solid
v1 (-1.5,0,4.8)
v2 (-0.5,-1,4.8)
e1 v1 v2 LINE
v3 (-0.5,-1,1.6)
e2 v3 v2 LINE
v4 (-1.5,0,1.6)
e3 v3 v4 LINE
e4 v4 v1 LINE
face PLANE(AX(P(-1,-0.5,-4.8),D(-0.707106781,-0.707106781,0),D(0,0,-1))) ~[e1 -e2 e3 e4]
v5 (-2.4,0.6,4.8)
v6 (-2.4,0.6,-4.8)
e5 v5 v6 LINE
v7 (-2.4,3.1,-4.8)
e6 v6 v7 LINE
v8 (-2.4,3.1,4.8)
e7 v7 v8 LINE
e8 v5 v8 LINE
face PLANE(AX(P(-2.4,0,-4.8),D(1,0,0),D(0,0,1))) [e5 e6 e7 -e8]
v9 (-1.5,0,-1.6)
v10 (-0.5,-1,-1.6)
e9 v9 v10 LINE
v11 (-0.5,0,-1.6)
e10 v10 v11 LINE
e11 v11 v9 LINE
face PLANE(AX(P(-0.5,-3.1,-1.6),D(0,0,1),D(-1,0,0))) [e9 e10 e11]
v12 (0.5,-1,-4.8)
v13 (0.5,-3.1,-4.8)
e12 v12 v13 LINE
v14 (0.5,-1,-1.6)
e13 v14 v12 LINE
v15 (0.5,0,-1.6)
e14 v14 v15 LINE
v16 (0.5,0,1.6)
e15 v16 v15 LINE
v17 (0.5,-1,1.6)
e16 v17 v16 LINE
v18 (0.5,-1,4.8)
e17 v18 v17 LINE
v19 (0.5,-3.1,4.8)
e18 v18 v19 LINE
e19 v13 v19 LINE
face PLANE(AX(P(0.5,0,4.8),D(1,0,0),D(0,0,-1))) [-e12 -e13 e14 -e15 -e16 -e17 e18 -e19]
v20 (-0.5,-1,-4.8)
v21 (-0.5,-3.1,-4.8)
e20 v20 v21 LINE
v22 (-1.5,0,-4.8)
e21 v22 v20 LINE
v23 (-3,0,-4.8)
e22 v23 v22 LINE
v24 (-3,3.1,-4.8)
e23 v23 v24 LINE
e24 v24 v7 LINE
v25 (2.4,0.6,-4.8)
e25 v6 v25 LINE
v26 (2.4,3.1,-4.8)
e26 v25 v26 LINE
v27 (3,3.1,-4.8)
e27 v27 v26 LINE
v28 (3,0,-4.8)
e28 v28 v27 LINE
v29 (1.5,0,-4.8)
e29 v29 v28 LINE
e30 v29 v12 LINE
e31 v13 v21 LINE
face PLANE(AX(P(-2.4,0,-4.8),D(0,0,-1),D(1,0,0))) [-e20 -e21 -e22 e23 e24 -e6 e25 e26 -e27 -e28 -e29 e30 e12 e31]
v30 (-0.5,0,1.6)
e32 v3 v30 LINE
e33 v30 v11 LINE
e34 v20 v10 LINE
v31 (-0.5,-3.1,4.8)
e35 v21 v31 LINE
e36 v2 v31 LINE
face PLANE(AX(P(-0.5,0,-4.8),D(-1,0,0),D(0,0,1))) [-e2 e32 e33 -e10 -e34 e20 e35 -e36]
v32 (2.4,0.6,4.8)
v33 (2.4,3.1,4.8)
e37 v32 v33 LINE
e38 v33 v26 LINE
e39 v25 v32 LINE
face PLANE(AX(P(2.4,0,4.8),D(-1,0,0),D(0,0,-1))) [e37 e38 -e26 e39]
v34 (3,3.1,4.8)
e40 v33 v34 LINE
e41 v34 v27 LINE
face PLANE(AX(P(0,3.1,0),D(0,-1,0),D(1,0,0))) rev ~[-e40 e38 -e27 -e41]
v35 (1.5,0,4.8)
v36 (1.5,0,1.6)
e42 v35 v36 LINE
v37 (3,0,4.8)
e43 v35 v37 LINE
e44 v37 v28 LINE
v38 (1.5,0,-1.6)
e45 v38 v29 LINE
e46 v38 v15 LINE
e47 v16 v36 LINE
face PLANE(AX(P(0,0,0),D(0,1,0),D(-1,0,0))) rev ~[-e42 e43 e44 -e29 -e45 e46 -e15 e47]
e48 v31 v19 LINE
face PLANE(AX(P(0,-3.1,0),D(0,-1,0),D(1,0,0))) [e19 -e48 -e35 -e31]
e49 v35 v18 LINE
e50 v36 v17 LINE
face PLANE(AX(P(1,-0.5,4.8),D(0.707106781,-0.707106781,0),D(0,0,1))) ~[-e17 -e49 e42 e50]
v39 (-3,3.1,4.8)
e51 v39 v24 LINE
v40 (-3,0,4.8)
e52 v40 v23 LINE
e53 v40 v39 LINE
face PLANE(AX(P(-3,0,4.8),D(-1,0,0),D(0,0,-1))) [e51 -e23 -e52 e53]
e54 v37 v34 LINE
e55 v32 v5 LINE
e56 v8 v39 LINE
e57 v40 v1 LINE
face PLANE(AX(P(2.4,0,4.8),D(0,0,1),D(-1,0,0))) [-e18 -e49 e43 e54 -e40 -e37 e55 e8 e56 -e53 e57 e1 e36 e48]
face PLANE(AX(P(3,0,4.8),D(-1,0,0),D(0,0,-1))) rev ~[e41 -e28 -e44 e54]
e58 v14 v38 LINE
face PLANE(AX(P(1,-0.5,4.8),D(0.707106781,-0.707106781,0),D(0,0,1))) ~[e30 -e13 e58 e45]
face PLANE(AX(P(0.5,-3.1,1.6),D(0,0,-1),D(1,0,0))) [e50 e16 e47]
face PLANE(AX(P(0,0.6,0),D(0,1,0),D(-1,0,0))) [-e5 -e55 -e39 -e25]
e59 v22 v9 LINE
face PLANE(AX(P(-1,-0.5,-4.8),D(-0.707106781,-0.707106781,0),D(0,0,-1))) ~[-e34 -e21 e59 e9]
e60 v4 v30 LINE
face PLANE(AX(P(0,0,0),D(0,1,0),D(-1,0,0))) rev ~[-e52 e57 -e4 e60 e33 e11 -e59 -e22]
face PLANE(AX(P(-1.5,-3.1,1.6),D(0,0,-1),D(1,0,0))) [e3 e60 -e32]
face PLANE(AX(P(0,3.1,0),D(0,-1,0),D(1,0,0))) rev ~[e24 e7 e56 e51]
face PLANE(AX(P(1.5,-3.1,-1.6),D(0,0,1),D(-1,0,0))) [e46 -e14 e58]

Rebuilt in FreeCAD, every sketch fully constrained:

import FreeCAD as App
import Part
import Sketcher


def edges_at(feature, points):
    """Names of the edges that pass closest to the given points."""
    edges = feature.Shape.Edges
    near = lambda p: min(range(len(edges)), key=lambda i: edges[i].distToShape(Part.Vertex(*p))[0])
    return sorted({f"Edge{near(p) + 1}" for p in points})

doc = App.newDocument("Part")
body = doc.addObject("PartDesign::Body", "Body")

# Sketch on XZ plane
sketch1 = body.newObject("Sketcher::SketchObject", "Sketch")
sketch1.AttachmentSupport = (doc.getObject("XZ_Plane"), [""])
sketch1.MapMode = "FlatFace"
sketch1.addGeometry(Part.LineSegment(App.Vector(-2.4, 4.8, 0), App.Vector(2.4, 4.8, 0)), False)
sketch1.addGeometry(Part.LineSegment(App.Vector(2.4, 4.8, 0), App.Vector(2.4, -4.8, 0)), False)
sketch1.addGeometry(Part.LineSegment(App.Vector(2.4, -4.8, 0), App.Vector(-2.4, -4.8, 0)), False)
sketch1.addGeometry(Part.LineSegment(App.Vector(-2.4, -4.8, 0), App.Vector(-2.4, 4.8, 0)), False)
sketch1.addConstraint(Sketcher.Constraint("Coincident", 0, 2, 1, 1))
sketch1.addConstraint(Sketcher.Constraint("Coincident", 1, 2, 2, 1))
sketch1.addConstraint(Sketcher.Constraint("Coincident", 2, 2, 3, 1))
sketch1.addConstraint(Sketcher.Constraint("Coincident", 3, 2, 0, 1))
sketch1.addConstraint(Sketcher.Constraint("Horizontal", 0))
sketch1.addConstraint(Sketcher.Constraint("Vertical", 1))
sketch1.addConstraint(Sketcher.Constraint("Horizontal", 2))
sketch1.addConstraint(Sketcher.Constraint("Vertical", 3))
sketch1.addConstraint(Sketcher.Constraint("Symmetric", 0, 2, 2, 2, -1, 1))
sketch1.addConstraint(Sketcher.Constraint("DistanceX", 0, 1, 0, 2, 4.8))
sketch1.addConstraint(Sketcher.Constraint("DistanceY", 1, 2, 1, 1, 9.6))
pad1 = body.newObject("PartDesign::Pad", "Pad")
pad1.Profile = sketch1
pad1.Length = 0.6
pad1.Reversed = True

# Sketch on XZ plane
sketch2 = body.newObject("Sketcher::SketchObject", "Sketch001")
sketch2.AttachmentSupport = (doc.getObject("XZ_Plane"), [""])
sketch2.MapMode = "FlatFace"
sketch2.addGeometry(Part.LineSegment(App.Vector(2.4, 4.8, 0), App.Vector(2.4, -4.8, 0)), False)
sketch2.addGeometry(Part.LineSegment(App.Vector(2.4, -4.8, 0), App.Vector(3, -4.8, 0)), False)
sketch2.addGeometry(Part.LineSegment(App.Vector(3, -4.8, 0), App.Vector(3, 4.8, 0)), False)
sketch2.addGeometry(Part.LineSegment(App.Vector(3, 4.8, 0), App.Vector(2.4, 4.8, 0)), False)
sketch2.addGeometry(Part.LineSegment(App.Vector(-3, -4.8, 0), App.Vector(-2.4, -4.8, 0)), False)
sketch2.addGeometry(Part.LineSegment(App.Vector(-2.4, -4.8, 0), App.Vector(-2.4, 4.8, 0)), False)
sketch2.addGeometry(Part.LineSegment(App.Vector(-2.4, 4.8, 0), App.Vector(-3, 4.8, 0)), False)
sketch2.addGeometry(Part.LineSegment(App.Vector(-3, 4.8, 0), App.Vector(-3, -4.8, 0)), False)
sketch2.addConstraint(Sketcher.Constraint("Coincident", 0, 2, 1, 1))
sketch2.addConstraint(Sketcher.Constraint("Coincident", 1, 2, 2, 1))
sketch2.addConstraint(Sketcher.Constraint("Coincident", 2, 2, 3, 1))
sketch2.addConstraint(Sketcher.Constraint("Coincident", 3, 2, 0, 1))
sketch2.addConstraint(Sketcher.Constraint("Coincident", 4, 2, 5, 1))
sketch2.addConstraint(Sketcher.Constraint("Coincident", 5, 2, 6, 1))
sketch2.addConstraint(Sketcher.Constraint("Coincident", 6, 2, 7, 1))
sketch2.addConstraint(Sketcher.Constraint("Coincident", 7, 2, 4, 1))
sketch2.addConstraint(Sketcher.Constraint("Vertical", 0))
sketch2.addConstraint(Sketcher.Constraint("Horizontal", 1))
sketch2.addConstraint(Sketcher.Constraint("Vertical", 2))
sketch2.addConstraint(Sketcher.Constraint("Horizontal", 3))
sketch2.addConstraint(Sketcher.Constraint("Horizontal", 4))
sketch2.addConstraint(Sketcher.Constraint("Vertical", 5))
sketch2.addConstraint(Sketcher.Constraint("Horizontal", 6))
sketch2.addConstraint(Sketcher.Constraint("Vertical", 7))
sketch2.addConstraint(Sketcher.Constraint("Symmetric", 3, 2, 4, 2, -1, 1))
sketch2.addConstraint(Sketcher.Constraint("Symmetric", 1, 2, 6, 2, -1, 1))
sketch2.addConstraint(Sketcher.Constraint("Horizontal", 1, 2, 4, 2))
sketch2.addConstraint(Sketcher.Constraint("DistanceX", 1, 1, 1, 2, 0.6))
sketch2.addConstraint(Sketcher.Constraint("DistanceY", 0, 2, 0, 1, 9.6))
sketch2.addConstraint(Sketcher.Constraint("DistanceX", -1, 1, 1, 2, 3.0))
pad2 = body.newObject("PartDesign::Pad", "Pad001")
pad2.Profile = sketch2
pad2.Length = 3.1
pad2.Reversed = True

# Sketch on XZ plane
sketch3 = body.newObject("Sketcher::SketchObject", "Sketch002")
sketch3.AttachmentSupport = (doc.getObject("XZ_Plane"), [""])
sketch3.MapMode = "FlatFace"
sketch3.addGeometry(Part.LineSegment(App.Vector(-0.5, -4.8, 0), App.Vector(0.5, -4.8, 0)), False)
sketch3.addGeometry(Part.LineSegment(App.Vector(0.5, -4.8, 0), App.Vector(0.5, 4.8, 0)), False)
sketch3.addGeometry(Part.LineSegment(App.Vector(0.5, 4.8, 0), App.Vector(-0.5, 4.8, 0)), False)
sketch3.addGeometry(Part.LineSegment(App.Vector(-0.5, 4.8, 0), App.Vector(-0.5, -4.8, 0)), False)
sketch3.addConstraint(Sketcher.Constraint("Coincident", 0, 2, 1, 1))
sketch3.addConstraint(Sketcher.Constraint("Coincident", 1, 2, 2, 1))
sketch3.addConstraint(Sketcher.Constraint("Coincident", 2, 2, 3, 1))
sketch3.addConstraint(Sketcher.Constraint("Coincident", 3, 2, 0, 1))
sketch3.addConstraint(Sketcher.Constraint("Horizontal", 0))
sketch3.addConstraint(Sketcher.Constraint("Vertical", 1))
sketch3.addConstraint(Sketcher.Constraint("Horizontal", 2))
sketch3.addConstraint(Sketcher.Constraint("Vertical", 3))
sketch3.addConstraint(Sketcher.Constraint("Symmetric", 0, 2, 2, 2, -1, 1))
sketch3.addConstraint(Sketcher.Constraint("DistanceX", 0, 1, 0, 2, 1.0))
sketch3.addConstraint(Sketcher.Constraint("DistanceY", 1, 1, 1, 2, 9.6))
pad3 = body.newObject("PartDesign::Pad", "Pad002")
pad3.Profile = sketch3
pad3.Length = 3.1
doc.recompute()

chamfer = body.newObject("PartDesign::Chamfer", "Chamfer")
chamfer.Base = (pad3, edges_at(pad3, [(-0.5, 0, 0), (0.5, 0, 0)]))
chamfer.Size = 1

# Sketch on XZ plane
sketch4 = body.newObject("Sketcher::SketchObject", "Sketch003")
sketch4.AttachmentSupport = (doc.getObject("XZ_Plane"), [""])
sketch4.MapMode = "FlatFace"
sketch4.AttachmentOffset = App.Placement(App.Vector(0, 0, 3.1), App.Rotation())
sketch4.addGeometry(Part.LineSegment(App.Vector(1.5, -1.6, 0), App.Vector(1.5, 1.6, 0)), False)
sketch4.addGeometry(Part.LineSegment(App.Vector(1.5, 1.6, 0), App.Vector(0.5, 1.6, 0)), False)
sketch4.addGeometry(Part.LineSegment(App.Vector(0.5, 1.6, 0), App.Vector(0.5, -1.6, 0)), False)
sketch4.addGeometry(Part.LineSegment(App.Vector(0.5, -1.6, 0), App.Vector(1.5, -1.6, 0)), False)
sketch4.addGeometry(Part.LineSegment(App.Vector(-0.5, -1.6, 0), App.Vector(-0.5, 1.6, 0)), False)
sketch4.addGeometry(Part.LineSegment(App.Vector(-0.5, 1.6, 0), App.Vector(-1.5, 1.6, 0)), False)
sketch4.addGeometry(Part.LineSegment(App.Vector(-1.5, 1.6, 0), App.Vector(-1.5, -1.6, 0)), False)
sketch4.addGeometry(Part.LineSegment(App.Vector(-1.5, -1.6, 0), App.Vector(-0.5, -1.6, 0)), False)
sketch4.addConstraint(Sketcher.Constraint("Coincident", 0, 2, 1, 1))
sketch4.addConstraint(Sketcher.Constraint("Coincident", 1, 2, 2, 1))
sketch4.addConstraint(Sketcher.Constraint("Coincident", 2, 2, 3, 1))
sketch4.addConstraint(Sketcher.Constraint("Coincident", 3, 2, 0, 1))
sketch4.addConstraint(Sketcher.Constraint("Coincident", 4, 2, 5, 1))
sketch4.addConstraint(Sketcher.Constraint("Coincident", 5, 2, 6, 1))
sketch4.addConstraint(Sketcher.Constraint("Coincident", 6, 2, 7, 1))
sketch4.addConstraint(Sketcher.Constraint("Coincident", 7, 2, 4, 1))
sketch4.addConstraint(Sketcher.Constraint("Vertical", 0))
sketch4.addConstraint(Sketcher.Constraint("Horizontal", 1))
sketch4.addConstraint(Sketcher.Constraint("Vertical", 2))
sketch4.addConstraint(Sketcher.Constraint("Horizontal", 3))
sketch4.addConstraint(Sketcher.Constraint("Vertical", 4))
sketch4.addConstraint(Sketcher.Constraint("Horizontal", 5))
sketch4.addConstraint(Sketcher.Constraint("Vertical", 6))
sketch4.addConstraint(Sketcher.Constraint("Horizontal", 7))
sketch4.addConstraint(Sketcher.Constraint("Symmetric", 2, 2, 4, 2, -1, 1))
sketch4.addConstraint(Sketcher.Constraint("Symmetric", 0, 2, 6, 2, -1, 1))
sketch4.addConstraint(Sketcher.Constraint("Horizontal", 1, 2, 4, 2))
sketch4.addConstraint(Sketcher.Constraint("DistanceY", 0, 1, 0, 2, 3.2))
sketch4.addConstraint(Sketcher.Constraint("DistanceX", 1, 2, 1, 1, 1.0))
sketch4.addConstraint(Sketcher.Constraint("DistanceX", 4, 2, 1, 2, 1.0))
pocket1 = body.newObject("PartDesign::Pocket", "Pocket")
pocket1.Profile = sketch4
pocket1.Length = 3.1

doc.recompute()
